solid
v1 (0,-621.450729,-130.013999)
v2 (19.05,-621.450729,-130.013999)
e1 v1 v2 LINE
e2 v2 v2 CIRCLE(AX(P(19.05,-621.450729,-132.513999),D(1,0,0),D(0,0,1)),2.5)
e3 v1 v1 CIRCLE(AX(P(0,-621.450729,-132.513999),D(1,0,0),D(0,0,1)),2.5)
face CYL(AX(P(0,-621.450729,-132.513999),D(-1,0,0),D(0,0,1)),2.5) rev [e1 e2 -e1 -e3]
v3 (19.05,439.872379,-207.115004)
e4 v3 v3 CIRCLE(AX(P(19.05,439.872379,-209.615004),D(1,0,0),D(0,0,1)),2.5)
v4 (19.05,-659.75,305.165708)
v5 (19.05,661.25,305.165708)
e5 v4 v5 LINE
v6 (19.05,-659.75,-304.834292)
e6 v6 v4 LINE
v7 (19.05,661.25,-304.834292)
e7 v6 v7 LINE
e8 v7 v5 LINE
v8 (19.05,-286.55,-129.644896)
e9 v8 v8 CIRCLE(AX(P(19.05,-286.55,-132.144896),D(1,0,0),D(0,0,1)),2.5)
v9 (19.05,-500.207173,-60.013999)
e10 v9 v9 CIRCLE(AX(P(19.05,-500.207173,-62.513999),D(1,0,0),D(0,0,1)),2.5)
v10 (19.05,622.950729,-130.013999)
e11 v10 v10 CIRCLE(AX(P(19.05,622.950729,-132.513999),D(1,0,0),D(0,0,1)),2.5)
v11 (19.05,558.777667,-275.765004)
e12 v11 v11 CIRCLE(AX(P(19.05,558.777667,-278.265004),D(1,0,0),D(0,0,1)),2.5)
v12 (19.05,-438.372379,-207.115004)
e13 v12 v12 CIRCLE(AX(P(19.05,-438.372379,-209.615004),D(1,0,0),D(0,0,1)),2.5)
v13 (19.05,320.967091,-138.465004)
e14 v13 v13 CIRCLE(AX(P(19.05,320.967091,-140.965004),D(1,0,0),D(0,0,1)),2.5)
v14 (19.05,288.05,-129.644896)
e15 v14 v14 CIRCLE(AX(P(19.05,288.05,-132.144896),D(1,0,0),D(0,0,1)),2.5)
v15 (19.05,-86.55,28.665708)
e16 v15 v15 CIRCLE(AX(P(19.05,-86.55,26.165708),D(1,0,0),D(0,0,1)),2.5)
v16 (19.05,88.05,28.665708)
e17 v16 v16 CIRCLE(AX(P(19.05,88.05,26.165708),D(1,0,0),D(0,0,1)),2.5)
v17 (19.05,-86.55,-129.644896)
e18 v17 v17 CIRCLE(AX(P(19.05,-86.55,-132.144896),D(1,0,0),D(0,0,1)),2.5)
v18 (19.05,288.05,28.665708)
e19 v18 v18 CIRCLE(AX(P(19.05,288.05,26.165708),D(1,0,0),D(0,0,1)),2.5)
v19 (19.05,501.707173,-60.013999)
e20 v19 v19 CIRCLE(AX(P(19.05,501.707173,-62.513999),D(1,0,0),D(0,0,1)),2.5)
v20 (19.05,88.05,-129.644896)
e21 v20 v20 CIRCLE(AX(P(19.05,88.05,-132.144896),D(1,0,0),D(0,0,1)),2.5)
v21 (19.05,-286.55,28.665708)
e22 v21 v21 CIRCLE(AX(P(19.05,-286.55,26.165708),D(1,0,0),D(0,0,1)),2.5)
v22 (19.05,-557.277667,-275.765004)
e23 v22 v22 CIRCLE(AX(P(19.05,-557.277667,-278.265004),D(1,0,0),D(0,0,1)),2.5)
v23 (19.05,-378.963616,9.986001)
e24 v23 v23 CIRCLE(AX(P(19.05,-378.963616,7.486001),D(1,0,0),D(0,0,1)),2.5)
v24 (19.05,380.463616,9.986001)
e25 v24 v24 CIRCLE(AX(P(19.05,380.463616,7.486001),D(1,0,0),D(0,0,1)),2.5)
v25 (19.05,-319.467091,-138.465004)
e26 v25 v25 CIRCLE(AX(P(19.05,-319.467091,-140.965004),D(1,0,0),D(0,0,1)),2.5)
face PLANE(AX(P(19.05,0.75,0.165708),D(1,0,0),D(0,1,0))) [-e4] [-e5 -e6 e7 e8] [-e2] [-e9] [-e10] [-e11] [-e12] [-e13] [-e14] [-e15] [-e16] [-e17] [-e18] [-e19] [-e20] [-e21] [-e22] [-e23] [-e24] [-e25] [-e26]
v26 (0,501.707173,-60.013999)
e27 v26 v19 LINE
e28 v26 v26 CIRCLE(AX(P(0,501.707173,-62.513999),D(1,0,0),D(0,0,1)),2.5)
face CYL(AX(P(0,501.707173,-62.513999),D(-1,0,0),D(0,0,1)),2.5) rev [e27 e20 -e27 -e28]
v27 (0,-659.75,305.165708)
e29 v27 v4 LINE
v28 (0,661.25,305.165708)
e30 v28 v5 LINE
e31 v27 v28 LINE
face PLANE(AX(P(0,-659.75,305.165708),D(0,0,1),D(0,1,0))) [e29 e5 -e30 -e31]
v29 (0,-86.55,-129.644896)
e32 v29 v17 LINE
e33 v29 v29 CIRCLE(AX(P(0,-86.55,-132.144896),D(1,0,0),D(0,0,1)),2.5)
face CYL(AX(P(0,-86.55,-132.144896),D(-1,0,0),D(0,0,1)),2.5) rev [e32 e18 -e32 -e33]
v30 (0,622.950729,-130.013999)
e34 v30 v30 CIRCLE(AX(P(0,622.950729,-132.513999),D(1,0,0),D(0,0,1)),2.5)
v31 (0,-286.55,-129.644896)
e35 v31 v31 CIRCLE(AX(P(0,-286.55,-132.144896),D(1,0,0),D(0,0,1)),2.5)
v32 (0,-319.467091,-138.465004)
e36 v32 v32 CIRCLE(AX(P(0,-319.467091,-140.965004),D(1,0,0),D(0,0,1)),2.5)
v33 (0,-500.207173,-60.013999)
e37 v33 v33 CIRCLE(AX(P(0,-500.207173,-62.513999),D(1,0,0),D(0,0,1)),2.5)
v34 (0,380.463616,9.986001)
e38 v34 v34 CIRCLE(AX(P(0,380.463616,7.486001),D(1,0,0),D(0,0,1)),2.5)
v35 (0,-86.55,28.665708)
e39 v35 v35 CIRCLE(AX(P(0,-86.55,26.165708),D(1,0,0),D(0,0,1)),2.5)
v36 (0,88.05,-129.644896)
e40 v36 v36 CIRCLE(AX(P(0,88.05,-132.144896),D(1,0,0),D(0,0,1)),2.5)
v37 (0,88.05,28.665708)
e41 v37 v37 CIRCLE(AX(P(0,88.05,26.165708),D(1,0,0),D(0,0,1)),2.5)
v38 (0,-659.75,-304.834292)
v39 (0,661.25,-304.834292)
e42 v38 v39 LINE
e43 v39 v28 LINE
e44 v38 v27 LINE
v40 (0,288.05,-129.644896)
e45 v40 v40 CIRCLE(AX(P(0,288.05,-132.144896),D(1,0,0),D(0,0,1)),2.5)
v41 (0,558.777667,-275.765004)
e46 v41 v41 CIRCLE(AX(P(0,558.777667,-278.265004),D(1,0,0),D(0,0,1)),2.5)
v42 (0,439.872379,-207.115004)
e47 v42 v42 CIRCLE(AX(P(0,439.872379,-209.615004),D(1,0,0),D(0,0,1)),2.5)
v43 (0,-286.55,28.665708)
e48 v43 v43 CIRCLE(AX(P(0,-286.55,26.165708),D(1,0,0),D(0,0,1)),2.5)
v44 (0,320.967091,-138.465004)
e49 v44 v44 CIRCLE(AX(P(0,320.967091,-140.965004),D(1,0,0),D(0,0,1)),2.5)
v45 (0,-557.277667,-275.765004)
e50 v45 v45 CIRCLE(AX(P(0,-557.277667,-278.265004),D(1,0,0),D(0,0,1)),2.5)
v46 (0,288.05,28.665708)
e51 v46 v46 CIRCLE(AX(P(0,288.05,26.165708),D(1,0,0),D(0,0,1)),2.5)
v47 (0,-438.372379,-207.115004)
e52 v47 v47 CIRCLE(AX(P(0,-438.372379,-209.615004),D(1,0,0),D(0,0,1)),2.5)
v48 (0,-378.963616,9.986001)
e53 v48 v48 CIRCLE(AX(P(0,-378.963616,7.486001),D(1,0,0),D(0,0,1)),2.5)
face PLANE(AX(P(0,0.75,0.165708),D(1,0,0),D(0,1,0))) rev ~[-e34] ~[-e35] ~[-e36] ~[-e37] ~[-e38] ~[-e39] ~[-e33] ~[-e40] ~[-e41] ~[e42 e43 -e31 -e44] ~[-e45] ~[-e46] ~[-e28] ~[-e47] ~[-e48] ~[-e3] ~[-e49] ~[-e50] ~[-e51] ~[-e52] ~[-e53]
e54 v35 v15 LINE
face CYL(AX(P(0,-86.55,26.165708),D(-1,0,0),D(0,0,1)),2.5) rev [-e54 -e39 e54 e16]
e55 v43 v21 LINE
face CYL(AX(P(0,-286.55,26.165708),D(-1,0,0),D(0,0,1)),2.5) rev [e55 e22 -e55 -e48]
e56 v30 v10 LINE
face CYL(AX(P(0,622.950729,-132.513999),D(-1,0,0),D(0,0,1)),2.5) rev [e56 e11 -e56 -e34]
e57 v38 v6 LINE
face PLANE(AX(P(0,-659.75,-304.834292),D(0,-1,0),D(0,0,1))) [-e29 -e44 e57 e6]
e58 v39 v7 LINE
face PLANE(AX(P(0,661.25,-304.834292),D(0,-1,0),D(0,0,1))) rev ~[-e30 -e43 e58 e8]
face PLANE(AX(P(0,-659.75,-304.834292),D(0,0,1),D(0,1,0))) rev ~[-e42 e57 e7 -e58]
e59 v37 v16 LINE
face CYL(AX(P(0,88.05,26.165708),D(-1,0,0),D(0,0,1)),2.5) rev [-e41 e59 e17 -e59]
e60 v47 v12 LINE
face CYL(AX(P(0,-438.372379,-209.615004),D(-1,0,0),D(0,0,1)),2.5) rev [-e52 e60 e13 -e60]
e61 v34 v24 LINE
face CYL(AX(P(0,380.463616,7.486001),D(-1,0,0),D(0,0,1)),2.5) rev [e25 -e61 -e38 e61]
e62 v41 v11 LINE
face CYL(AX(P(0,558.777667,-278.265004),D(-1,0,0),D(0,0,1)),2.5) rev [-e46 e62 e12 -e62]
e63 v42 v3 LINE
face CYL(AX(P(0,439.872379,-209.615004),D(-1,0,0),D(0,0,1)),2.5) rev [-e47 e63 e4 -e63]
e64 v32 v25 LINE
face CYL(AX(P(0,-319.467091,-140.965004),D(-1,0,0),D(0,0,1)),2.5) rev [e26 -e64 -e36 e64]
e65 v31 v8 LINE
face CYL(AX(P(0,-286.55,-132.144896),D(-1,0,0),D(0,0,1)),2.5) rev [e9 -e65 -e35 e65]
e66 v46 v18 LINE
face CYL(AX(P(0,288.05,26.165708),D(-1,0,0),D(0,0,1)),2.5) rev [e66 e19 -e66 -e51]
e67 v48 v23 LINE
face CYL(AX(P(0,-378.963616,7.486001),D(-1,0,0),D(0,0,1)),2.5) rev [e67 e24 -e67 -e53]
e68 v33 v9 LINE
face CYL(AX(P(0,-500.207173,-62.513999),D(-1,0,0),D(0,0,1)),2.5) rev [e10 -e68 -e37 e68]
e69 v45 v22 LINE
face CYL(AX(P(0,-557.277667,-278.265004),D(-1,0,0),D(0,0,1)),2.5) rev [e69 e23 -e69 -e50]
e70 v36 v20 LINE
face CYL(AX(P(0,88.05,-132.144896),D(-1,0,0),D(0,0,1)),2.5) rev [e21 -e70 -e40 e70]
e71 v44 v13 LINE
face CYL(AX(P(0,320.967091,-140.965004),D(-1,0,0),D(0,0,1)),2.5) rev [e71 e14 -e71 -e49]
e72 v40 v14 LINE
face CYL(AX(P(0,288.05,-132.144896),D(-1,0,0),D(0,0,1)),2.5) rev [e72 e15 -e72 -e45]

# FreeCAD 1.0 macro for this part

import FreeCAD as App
import Part
import Sketcher

V = App.Vector
Q = App.Units.Quantity

doc = App.newDocument("Part")
body = doc.addObject("PartDesign::Body", "Body")

# Sketch on YZ plane
sketch1 = body.newObject("Sketcher::SketchObject", "Sketch")
sketch1.AttachmentSupport = (doc.getObject("YZ_Plane"), [""])
sketch1.MapMode = "FlatFace"
sketch1.addGeometry([
    Part.LineSegment(V(-659.75, 305.165708, 0), V(-659.75, -304.834292, 0)),  # 0
    Part.LineSegment(V(-659.75, -304.834292, 0), V(661.25, -304.834292, 0)),  # 1
    Part.LineSegment(V(661.25, -304.834292, 0), V(661.25, 305.165708, 0)),  # 2
    Part.LineSegment(V(661.25, 305.165708, 0), V(-659.75, 305.165708, 0)),  # 3
    Part.Circle(V(-557.277667, -278.265004, 0), V(0, 0, 1), 2.5),  # 4
    Part.Circle(V(-438.372379, -209.615004, 0), V(0, 0, 1), 2.5),  # 5
    Part.Circle(V(-621.450729, -132.513999, 0), V(0, 0, 1), 2.5),  # 6
    Part.Circle(V(-319.467091, -140.965004, 0), V(0, 0, 1), 2.5),  # 7
    Part.Circle(V(-286.55, -132.144896, 0), V(0, 0, 1), 2.5),  # 8
    Part.Circle(V(-86.55, -132.144896, 0), V(0, 0, 1), 2.5),  # 9
    Part.Circle(V(558.777667, -278.265004, 0), V(0, 0, 1), 2.5),  # 10
    Part.Circle(V(439.872379, -209.615004, 0), V(0, 0, 1), 2.5),  # 11
    Part.Circle(V(88.05, -132.144896, 0), V(0, 0, 1), 2.5),  # 12
    Part.Circle(V(288.05, -132.144896, 0), V(0, 0, 1), 2.5),  # 13
    Part.Circle(V(320.967091, -140.965004, 0), V(0, 0, 1), 2.5),  # 14
    Part.Circle(V(622.950729, -132.513999, 0), V(0, 0, 1), 2.5),  # 15
    Part.Circle(V(-500.207173, -62.513999, 0), V(0, 0, 1), 2.5),  # 16
    Part.Circle(V(-378.963616, 7.486001, 0), V(0, 0, 1), 2.5),  # 17
    Part.Circle(V(-286.55, 26.165708, 0), V(0, 0, 1), 2.5),  # 18
    Part.Circle(V(-86.55, 26.165708, 0), V(0, 0, 1), 2.5),  # 19
    Part.Circle(V(501.707173, -62.513999, 0), V(0, 0, 1), 2.5),  # 20
    Part.Circle(V(88.05, 26.165708, 0), V(0, 0, 1), 2.5),  # 21
    Part.Circle(V(288.05, 26.165708, 0), V(0, 0, 1), 2.5),  # 22
    Part.Circle(V(380.463616, 7.486001, 0), V(0, 0, 1), 2.5),  # 23
], False)
sketch1.addConstraint([
    Sketcher.Constraint("Coincident", 0, 2, 1, 1),
    Sketcher.Constraint("Coincident", 1, 2, 2, 1),
    Sketcher.Constraint("Coincident", 2, 2, 3, 1),
    Sketcher.Constraint("Coincident", 3, 2, 0, 1),
    Sketcher.Constraint("Vertical", 0),
    Sketcher.Constraint("Horizontal", 1),
    Sketcher.Constraint("Vertical", 2),
    Sketcher.Constraint("Horizontal", 3),
    Sketcher.Constraint("Equal", 4, 5),
    Sketcher.Constraint("Equal", 5, 6),
    Sketcher.Constraint("Equal", 6, 7),
    Sketcher.Constraint("Equal", 7, 8),
    Sketcher.Constraint("Equal", 8, 9),
    Sketcher.Constraint("Equal", 9, 10),
    Sketcher.Constraint("Equal", 10, 11),
    Sketcher.Constraint("Equal", 11, 12),
    Sketcher.Constraint("Equal", 12, 13),
    Sketcher.Constraint("Equal", 13, 14),
    Sketcher.Constraint("Equal", 14, 15),
    Sketcher.Constraint("Equal", 15, 16),
    Sketcher.Constraint("Equal", 16, 17),
    Sketcher.Constraint("Equal", 17, 18),
    Sketcher.Constraint("Equal", 18, 19),
    Sketcher.Constraint("Equal", 19, 20),
    Sketcher.Constraint("Equal", 20, 21),
    Sketcher.Constraint("Equal", 21, 22),
    Sketcher.Constraint("Equal", 22, 23),
    Sketcher.Constraint("Horizontal", 8, 3, 9, 3),
    Sketcher.Constraint("Horizontal", 4, 3, 10, 3),
    Sketcher.Constraint("Horizontal", 5, 3, 11, 3),
    Sketcher.Constraint("Horizontal", 9, 3, 12, 3),
    Sketcher.Constraint("Horizontal", 12, 3, 13, 3),
    Sketcher.Constraint("Horizontal", 7, 3, 14, 3),
    Sketcher.Constraint("Horizontal", 6, 3, 15, 3),
    Sketcher.Constraint("Horizontal", 18, 3, 19, 3),
    Sketcher.Constraint("Horizontal", 16, 3, 20, 3),
    Sketcher.Constraint("Horizontal", 19, 3, 21, 3),
    Sketcher.Constraint("Horizontal", 21, 3, 22, 3),
    Sketcher.Constraint("Horizontal", 17, 3, 23, 3),
    Sketcher.Constraint("Vertical", 8, 3, 18, 3),
    Sketcher.Constraint("Vertical", 9, 3, 19, 3),
    Sketcher.Constraint("Vertical", 12, 3, 21, 3),
    Sketcher.Constraint("Vertical", 13, 3, 22, 3),
    Sketcher.Constraint("Diameter", 4, Q("5 mm")),
    Sketcher.Constraint("DistanceX", 1, 1, 1, 2, Q("1321 mm")),
    Sketcher.Constraint("DistanceY", 0, 2, 0, 1, Q("610 mm")),
    Sketcher.Constraint("DistanceX", 8, 3, 9, 3, Q("200 mm")),
    Sketcher.Constraint("DistanceX", 12, 3, 13, 3, Q("200 mm")),
    Sketcher.Constraint("DistanceY", 6, 3, 16, 3, Q("70 mm")),
    Sketcher.Constraint("DistanceY", 16, 3, 17, 3, Q("70 mm")),
    Sketcher.Constraint("DistanceY", 22, 3, 2, 2, Q("279 mm")),
    Sketcher.Constraint("DistanceY", 4, 3, 7, 3, Q("137.3 mm")),
    Sketcher.Constraint("DistanceX", 9, 3, 12, 3, Q("174.6 mm")),
    Sketcher.Constraint("DistanceX", 22, 3, 2, 2, Q("373.2 mm")),
    Sketcher.Constraint("DistanceX", 8, 3, -1, 1, Q("286.55 mm")),
    Sketcher.Constraint("DistanceY", 4, 3, 5, 3, Q("68.65 mm")),
    Sketcher.Constraint("DistanceY", 6, 3, -1, 1, Q("132.513999 mm")),
    Sketcher.Constraint("DistanceX", 5, 3, -1, 1, Q("438.372379 mm")),
    Sketcher.Constraint("DistanceX", 6, 3, -1, 1, Q("621.450729 mm")),
    Sketcher.Constraint("DistanceX", 7, 3, -1, 1, Q("319.467091 mm")),
    Sketcher.Constraint("DistanceX", -1, 1, 11, 3, Q("439.872379 mm")),
    Sketcher.Constraint("DistanceX", -1, 1, 14, 3, Q("320.967091 mm")),
    Sketcher.Constraint("DistanceX", -1, 1, 15, 3, Q("622.950729 mm")),
    Sketcher.Constraint("DistanceY", -1, 1, 18, 3, Q("26.165708 mm")),
    Sketcher.Constraint("DistanceX", 16, 3, 7, 3, Q("180.740082 mm")),
    Sketcher.Constraint("DistanceY", 7, 3, 18, 3, Q("167.130712 mm")),
    Sketcher.Constraint("DistanceX", 14, 3, 20, 3, Q("180.740082 mm")),
    Sketcher.Constraint("DistanceX", 4, 3, -1, 1, Q("557.277667 mm")),
    Sketcher.Constraint("DistanceY", 8, 3, -1, 1, Q("132.144896 mm")),
    Sketcher.Constraint("DistanceX", -1, 1, 10, 3, Q("558.777667 mm")),
    Sketcher.Constraint("DistanceX", 17, 3, -1, 1, Q("378.963616 mm")),
    Sketcher.Constraint("DistanceX", -1, 1, 23, 3, Q("380.463616 mm")),
])
pad1 = body.newObject("PartDesign::Pad", "Pad")
pad1.Profile = sketch1
pad1.Length = 19.05

doc.recompute()
